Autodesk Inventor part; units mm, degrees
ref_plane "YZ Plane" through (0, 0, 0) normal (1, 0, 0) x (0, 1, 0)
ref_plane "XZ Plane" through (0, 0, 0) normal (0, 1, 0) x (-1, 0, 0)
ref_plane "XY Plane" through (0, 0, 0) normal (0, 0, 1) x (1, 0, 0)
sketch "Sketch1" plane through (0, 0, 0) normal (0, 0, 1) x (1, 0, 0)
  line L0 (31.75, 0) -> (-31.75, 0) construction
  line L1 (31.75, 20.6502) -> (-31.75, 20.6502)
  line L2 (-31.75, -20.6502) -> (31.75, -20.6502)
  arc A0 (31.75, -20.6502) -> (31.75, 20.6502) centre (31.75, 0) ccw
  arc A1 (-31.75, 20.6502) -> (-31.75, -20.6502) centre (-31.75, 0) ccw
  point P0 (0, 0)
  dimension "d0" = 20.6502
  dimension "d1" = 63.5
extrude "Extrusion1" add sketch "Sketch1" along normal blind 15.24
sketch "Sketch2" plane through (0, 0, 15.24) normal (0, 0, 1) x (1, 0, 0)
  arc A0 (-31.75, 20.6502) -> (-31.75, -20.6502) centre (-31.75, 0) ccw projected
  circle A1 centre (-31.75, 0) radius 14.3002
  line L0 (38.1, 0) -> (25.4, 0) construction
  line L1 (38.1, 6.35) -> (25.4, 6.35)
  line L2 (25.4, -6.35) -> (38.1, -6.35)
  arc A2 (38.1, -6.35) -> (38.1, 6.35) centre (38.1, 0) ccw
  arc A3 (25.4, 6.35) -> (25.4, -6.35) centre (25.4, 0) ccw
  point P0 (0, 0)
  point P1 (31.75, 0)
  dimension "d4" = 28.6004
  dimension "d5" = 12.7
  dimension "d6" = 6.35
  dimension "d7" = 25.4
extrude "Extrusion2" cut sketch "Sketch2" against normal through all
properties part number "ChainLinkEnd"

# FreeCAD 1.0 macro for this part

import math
import FreeCAD as App
import Part
import Sketcher

V = App.Vector
Q = App.Units.Quantity

doc = App.newDocument("Part")
body = doc.addObject("PartDesign::Body", "Body")

# Sketch on XY plane
sketch1 = body.newObject("Sketcher::SketchObject", "Sketch")
sketch1.AttachmentSupport = (doc.getObject("XY_Plane"), [""])
sketch1.MapMode = "FlatFace"
sketch1.addGeometry(Part.ArcOfCircle(Part.Circle(V(32, 0, 0), V(0, 0, 1), 21), math.radians(-90), math.radians(90)), False)
sketch1.addGeometry(Part.LineSegment(V(32, 21, 0), V(-32, 21, 0)), False)
sketch1.addGeometry(Part.ArcOfCircle(Part.Circle(V(-32, 0, 0), V(0, 0, 1), 21), math.radians(90), math.radians(270)), False)
sketch1.addGeometry(Part.LineSegment(V(-32, -21, 0), V(32, -21, 0)), False)
sketch1.addConstraint(Sketcher.Constraint("Tangent", 0, 2, 1, 1))
sketch1.addConstraint(Sketcher.Constraint("Tangent", 1, 2, 2, 1))
sketch1.addConstraint(Sketcher.Constraint("Tangent", 2, 2, 3, 1))
sketch1.addConstraint(Sketcher.Constraint("Tangent", 3, 2, 0, 1))
sketch1.addConstraint(Sketcher.Constraint("Horizontal", 1))
sketch1.addConstraint(Sketcher.Constraint("Horizontal", 3))
sketch1.addConstraint(Sketcher.Constraint("Symmetric", 0, 3, 2, 3, -1, 1))
sketch1.addConstraint(Sketcher.Constraint("DistanceX", 1, 2, 1, 1, Q("2.5 in")))
sketch1.addConstraint(Sketcher.Constraint("Radius", 0, Q("0.813 in")))
pad1 = body.newObject("PartDesign::Pad", "Pad")
pad1.Profile = sketch1
pad1.Length = Q("0.6 in")

# Sketch on XY plane
sketch2 = body.newObject("Sketcher::SketchObject", "Sketch001")
sketch2.AttachmentSupport = (doc.getObject("XY_Plane"), [""])
sketch2.MapMode = "FlatFace"
sketch2.AttachmentOffset = App.Placement(V(0, 0, 0.6 * 25.4), App.Rotation())
sketch2.addGeometry(Part.Circle(V(-32, 0, 0), V(0, 0, 1), 14), False)
sketch2.addGeometry(Part.ArcOfCircle(Part.Circle(V(38, 0, 0), V(0, 0, 1), 6), math.radians(-90), math.radians(90)), False)
sketch2.addGeometry(Part.LineSegment(V(38, 6, 0), V(25, 6, 0)), False)
sketch2.addGeometry(Part.ArcOfCircle(Part.Circle(V(25, 0, 0), V(0, 0, 1), 6), math.radians(90), math.radians(270)), False)
sketch2.addGeometry(Part.LineSegment(V(25, -6, 0), V(38, -6, 0)), False)
sketch2.addConstraint(Sketcher.Constraint("Tangent", 1, 2, 2, 1))
sketch2.addConstraint(Sketcher.Constraint("Tangent", 2, 2, 3, 1))
sketch2.addConstraint(Sketcher.Constraint("Tangent", 3, 2, 4, 1))
sketch2.addConstraint(Sketcher.Constraint("Tangent", 4, 2, 1, 1))
sketch2.addConstraint(Sketcher.Constraint("Horizontal", 2))
sketch2.addConstraint(Sketcher.Constraint("Horizontal", 4))
sketch2.addConstraint(Sketcher.Constraint("PointOnObject", 0, 3, -1))
sketch2.addConstraint(Sketcher.Constraint("PointOnObject", 1, 3, -1))
sketch2.addConstraint(Sketcher.Constraint("Radius", 1, Q("0.25 in")))
sketch2.addConstraint(Sketcher.Constraint("Diameter", 0, Q("1.126 in")))
sketch2.addConstraint(Sketcher.Constraint("DistanceX", 2, 2, 2, 1, Q("0.5 in")))
sketch2.addConstraint(Sketcher.Constraint("DistanceX", -1, 1, 3, 3, Q("1 in")))
sketch2.addConstraint(Sketcher.Constraint("DistanceX", 0, 3, -1, 1, Q("1.25 in")))
pocket1 = body.newObject("PartDesign::Pocket", "Pocket")
pocket1.Profile = sketch2
pocket1.Type = "ThroughAll"

doc.recompute()
